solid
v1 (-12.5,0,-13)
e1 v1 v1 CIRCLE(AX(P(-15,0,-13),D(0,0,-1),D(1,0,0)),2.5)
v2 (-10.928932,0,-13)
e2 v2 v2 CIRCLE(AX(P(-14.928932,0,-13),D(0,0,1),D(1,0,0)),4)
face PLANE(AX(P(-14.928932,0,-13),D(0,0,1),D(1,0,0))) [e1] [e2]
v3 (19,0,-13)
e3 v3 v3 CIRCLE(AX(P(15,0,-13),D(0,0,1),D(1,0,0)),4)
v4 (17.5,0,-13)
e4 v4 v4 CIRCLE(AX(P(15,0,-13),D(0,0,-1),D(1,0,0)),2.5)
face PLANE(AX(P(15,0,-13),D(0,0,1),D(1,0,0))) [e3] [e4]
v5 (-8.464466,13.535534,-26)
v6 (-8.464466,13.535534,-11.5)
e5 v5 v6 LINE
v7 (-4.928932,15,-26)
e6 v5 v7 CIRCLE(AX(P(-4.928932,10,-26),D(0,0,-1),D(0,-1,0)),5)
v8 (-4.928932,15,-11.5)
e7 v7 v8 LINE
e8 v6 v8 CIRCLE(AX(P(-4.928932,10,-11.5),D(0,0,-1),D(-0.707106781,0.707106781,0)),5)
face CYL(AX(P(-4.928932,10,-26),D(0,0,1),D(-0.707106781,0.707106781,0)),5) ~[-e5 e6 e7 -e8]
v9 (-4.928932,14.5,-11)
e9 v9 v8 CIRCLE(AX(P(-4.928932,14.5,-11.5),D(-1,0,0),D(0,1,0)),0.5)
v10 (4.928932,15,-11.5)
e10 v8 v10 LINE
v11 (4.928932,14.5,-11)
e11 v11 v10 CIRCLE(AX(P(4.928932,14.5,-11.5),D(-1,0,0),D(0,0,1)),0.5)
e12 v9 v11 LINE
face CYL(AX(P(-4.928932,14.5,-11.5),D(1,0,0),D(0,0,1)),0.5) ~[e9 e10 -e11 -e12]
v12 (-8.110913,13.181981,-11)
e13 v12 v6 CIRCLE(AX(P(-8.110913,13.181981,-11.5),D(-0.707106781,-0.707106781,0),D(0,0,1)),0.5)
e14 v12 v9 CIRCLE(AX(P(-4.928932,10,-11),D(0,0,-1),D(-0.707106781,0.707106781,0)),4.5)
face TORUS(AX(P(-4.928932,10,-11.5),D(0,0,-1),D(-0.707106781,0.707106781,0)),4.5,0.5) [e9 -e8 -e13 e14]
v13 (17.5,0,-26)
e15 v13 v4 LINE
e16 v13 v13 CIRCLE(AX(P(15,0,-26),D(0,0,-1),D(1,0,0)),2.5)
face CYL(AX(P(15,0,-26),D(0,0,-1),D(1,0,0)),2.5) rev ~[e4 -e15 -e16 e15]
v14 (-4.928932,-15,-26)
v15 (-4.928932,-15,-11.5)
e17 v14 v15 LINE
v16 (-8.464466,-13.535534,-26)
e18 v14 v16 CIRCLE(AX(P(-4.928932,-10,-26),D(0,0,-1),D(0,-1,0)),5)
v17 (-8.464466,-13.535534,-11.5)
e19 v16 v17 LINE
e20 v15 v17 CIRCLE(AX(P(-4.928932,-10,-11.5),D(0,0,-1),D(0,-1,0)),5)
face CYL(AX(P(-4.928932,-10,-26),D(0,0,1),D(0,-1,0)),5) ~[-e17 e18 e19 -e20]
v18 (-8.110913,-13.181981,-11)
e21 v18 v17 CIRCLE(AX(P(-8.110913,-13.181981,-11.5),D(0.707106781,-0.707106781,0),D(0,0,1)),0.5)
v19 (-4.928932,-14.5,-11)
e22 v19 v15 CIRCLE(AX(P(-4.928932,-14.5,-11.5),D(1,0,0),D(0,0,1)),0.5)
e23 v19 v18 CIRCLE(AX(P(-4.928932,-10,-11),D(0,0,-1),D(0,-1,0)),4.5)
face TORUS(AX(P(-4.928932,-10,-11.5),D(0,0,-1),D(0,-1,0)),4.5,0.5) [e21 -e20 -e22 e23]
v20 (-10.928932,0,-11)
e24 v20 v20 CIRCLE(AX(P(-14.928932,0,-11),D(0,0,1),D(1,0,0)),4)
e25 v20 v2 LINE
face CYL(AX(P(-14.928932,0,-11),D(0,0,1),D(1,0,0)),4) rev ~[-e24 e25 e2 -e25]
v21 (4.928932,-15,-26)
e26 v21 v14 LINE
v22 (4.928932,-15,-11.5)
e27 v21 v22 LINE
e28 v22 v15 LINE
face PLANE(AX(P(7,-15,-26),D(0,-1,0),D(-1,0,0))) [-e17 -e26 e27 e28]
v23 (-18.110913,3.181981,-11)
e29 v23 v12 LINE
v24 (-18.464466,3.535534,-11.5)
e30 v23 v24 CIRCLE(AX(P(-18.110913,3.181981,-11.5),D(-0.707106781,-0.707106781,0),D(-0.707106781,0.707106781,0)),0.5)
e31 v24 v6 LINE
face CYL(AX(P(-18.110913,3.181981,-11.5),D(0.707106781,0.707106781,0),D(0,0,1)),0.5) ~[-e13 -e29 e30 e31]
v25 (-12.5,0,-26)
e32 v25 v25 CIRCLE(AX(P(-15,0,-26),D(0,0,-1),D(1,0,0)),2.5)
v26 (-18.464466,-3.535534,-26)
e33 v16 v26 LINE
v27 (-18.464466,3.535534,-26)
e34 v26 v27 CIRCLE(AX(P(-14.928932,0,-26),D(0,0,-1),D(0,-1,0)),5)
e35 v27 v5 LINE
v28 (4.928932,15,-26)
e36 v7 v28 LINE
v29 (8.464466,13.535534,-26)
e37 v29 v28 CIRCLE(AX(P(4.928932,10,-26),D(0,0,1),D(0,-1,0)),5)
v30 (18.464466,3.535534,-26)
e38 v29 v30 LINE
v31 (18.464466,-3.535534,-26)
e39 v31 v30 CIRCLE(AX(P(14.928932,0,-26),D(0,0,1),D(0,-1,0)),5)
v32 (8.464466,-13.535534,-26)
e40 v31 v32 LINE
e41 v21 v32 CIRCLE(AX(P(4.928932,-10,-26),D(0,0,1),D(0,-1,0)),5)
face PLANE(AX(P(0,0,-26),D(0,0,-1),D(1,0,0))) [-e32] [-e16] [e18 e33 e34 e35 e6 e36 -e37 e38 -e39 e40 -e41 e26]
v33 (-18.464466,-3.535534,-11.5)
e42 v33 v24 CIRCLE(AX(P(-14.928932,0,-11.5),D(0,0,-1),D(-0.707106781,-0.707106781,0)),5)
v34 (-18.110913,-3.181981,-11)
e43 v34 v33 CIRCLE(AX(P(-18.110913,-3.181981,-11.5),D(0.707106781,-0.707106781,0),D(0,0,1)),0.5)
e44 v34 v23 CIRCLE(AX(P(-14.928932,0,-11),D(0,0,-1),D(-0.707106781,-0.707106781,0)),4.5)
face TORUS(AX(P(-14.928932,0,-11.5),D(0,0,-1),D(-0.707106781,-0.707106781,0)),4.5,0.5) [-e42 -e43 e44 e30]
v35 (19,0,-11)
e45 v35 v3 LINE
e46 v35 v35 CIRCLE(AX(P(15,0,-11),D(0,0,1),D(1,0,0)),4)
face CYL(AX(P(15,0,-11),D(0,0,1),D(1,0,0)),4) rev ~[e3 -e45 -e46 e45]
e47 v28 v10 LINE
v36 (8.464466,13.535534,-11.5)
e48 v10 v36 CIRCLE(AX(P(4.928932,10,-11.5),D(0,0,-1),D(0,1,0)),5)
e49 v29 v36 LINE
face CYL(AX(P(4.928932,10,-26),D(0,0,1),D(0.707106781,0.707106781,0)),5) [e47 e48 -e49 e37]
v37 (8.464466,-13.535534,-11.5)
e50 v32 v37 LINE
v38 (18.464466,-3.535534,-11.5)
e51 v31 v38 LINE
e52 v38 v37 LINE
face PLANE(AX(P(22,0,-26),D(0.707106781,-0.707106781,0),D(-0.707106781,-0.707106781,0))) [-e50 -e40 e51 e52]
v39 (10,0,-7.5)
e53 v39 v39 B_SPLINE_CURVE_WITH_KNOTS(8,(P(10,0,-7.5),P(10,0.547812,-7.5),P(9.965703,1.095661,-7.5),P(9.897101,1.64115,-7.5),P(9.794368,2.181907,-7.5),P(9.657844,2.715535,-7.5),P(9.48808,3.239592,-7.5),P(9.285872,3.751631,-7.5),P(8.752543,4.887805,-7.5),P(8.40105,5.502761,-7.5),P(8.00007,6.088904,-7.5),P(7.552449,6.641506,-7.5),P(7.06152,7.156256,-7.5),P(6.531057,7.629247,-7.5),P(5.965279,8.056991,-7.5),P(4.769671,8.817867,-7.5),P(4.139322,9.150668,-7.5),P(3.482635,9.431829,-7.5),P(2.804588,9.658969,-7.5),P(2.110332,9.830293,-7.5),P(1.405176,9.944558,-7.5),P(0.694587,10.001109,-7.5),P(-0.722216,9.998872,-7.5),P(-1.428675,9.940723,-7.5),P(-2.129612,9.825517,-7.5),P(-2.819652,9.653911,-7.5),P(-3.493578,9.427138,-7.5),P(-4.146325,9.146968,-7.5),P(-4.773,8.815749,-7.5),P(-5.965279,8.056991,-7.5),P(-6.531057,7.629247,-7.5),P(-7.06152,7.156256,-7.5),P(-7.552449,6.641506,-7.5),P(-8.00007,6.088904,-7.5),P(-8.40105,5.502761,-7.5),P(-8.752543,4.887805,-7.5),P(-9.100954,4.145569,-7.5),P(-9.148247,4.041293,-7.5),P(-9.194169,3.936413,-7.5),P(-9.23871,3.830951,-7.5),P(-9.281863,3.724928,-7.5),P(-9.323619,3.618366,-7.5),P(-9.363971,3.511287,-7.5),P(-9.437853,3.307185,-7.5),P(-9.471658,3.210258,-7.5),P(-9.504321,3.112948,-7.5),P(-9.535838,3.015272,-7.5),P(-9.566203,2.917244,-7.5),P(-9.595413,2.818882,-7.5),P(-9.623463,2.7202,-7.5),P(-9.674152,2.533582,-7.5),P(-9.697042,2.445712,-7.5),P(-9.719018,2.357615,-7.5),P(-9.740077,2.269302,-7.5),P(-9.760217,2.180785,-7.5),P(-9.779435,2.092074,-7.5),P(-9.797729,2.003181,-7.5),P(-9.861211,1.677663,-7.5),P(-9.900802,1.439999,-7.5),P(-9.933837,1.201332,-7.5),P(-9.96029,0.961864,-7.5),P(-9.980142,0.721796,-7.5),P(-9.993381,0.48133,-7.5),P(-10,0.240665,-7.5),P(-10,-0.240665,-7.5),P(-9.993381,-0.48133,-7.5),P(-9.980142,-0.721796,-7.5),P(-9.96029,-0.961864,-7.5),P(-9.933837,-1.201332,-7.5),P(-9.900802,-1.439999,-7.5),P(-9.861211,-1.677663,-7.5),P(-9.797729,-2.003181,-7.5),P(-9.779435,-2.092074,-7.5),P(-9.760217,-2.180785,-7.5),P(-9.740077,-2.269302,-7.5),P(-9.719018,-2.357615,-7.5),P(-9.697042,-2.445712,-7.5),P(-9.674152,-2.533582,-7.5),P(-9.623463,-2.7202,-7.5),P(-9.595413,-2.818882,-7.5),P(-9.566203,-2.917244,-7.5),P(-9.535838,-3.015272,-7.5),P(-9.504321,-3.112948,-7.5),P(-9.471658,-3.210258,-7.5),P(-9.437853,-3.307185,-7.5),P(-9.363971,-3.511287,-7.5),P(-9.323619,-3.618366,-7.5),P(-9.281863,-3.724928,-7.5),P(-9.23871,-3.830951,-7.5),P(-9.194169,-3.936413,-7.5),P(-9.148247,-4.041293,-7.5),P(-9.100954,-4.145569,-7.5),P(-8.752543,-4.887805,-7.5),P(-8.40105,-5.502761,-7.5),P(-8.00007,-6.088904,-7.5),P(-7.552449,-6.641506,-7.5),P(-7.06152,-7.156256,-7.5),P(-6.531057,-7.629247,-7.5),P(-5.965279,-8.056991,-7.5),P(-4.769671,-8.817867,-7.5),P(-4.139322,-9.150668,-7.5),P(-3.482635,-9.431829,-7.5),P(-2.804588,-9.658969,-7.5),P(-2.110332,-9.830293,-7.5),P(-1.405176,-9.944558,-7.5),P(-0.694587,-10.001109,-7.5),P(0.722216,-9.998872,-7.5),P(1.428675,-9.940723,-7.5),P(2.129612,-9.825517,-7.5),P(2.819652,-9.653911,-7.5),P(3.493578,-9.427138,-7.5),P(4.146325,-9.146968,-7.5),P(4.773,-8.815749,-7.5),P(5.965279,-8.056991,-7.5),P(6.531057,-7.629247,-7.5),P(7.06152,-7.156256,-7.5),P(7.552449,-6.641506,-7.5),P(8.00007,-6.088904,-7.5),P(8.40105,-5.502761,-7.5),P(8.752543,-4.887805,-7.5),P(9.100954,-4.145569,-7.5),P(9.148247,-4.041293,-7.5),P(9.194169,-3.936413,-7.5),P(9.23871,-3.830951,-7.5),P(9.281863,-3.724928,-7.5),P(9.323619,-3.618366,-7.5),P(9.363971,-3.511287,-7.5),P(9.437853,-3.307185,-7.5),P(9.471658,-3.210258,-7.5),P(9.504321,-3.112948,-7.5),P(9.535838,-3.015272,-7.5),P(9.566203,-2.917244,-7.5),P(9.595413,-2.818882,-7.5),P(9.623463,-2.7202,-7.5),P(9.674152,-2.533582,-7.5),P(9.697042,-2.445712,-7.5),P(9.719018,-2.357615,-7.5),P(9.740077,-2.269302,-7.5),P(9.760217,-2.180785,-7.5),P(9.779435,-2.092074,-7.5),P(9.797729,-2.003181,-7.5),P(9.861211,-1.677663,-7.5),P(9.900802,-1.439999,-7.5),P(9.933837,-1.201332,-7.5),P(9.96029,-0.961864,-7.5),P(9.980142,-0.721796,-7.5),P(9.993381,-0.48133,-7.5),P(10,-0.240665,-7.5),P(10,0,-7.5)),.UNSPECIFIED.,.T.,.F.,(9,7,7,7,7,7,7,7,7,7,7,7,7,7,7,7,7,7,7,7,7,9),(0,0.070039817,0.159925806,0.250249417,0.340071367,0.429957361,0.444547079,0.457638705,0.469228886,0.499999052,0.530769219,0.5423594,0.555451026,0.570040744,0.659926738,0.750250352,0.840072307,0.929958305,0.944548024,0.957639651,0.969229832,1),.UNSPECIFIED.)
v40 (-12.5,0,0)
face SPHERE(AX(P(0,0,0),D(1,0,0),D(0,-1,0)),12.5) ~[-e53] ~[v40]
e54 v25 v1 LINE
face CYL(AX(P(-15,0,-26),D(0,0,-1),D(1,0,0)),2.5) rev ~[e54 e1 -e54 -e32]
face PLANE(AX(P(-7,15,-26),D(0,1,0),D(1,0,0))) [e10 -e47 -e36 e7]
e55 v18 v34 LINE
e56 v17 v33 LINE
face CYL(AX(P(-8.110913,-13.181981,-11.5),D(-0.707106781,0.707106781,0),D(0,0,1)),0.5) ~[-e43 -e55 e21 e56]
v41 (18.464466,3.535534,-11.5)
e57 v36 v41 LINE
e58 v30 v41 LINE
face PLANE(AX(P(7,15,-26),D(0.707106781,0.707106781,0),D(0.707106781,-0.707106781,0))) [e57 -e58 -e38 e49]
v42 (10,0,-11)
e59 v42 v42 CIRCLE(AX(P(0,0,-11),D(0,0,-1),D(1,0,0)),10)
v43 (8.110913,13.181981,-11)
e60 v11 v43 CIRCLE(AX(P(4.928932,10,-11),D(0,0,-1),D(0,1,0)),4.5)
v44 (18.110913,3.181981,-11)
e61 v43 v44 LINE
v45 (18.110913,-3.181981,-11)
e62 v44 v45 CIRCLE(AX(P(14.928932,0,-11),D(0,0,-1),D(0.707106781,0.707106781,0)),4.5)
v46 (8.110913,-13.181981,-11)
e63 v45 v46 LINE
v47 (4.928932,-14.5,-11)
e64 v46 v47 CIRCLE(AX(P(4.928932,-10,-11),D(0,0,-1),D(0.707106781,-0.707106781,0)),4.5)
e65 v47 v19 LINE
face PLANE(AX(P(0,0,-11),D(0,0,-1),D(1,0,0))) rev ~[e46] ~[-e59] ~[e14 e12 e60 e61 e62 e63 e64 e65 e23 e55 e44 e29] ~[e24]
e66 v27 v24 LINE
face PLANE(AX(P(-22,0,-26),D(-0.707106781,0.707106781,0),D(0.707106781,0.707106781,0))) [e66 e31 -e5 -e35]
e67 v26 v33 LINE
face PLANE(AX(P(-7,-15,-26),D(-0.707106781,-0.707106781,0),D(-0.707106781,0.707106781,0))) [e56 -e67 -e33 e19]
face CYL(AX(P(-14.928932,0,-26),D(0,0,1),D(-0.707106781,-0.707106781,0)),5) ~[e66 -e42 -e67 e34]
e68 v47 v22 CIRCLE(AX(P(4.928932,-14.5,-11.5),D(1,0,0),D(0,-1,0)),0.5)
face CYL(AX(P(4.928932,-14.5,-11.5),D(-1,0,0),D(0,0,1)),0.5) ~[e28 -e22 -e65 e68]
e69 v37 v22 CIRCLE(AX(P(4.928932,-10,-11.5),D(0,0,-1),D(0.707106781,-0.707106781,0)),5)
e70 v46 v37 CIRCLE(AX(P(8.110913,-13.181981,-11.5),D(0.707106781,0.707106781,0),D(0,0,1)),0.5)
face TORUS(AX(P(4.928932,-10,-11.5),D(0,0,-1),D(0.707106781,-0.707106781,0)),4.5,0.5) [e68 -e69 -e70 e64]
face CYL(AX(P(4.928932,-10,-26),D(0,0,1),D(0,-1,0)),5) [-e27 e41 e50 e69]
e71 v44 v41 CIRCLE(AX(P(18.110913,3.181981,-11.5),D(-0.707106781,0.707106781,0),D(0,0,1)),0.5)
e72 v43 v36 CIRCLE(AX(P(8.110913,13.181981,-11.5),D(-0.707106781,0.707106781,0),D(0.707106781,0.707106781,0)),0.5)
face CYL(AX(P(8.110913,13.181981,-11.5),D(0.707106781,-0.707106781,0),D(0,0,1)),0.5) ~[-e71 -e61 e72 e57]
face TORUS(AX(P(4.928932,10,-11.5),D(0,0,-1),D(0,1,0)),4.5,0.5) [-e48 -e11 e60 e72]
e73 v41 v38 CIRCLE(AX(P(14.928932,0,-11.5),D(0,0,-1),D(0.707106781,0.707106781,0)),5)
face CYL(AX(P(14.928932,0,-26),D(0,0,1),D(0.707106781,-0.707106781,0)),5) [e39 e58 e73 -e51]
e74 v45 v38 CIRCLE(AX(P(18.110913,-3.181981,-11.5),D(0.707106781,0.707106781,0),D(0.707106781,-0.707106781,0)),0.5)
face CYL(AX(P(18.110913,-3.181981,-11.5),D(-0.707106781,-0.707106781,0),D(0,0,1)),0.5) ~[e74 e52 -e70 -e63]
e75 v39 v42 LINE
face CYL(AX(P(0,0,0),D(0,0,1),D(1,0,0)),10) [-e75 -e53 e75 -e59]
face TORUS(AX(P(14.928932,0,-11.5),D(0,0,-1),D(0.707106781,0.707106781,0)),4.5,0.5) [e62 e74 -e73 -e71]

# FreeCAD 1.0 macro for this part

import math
import FreeCAD as App
import Part
import Sketcher

V = App.Vector
Q = App.Units.Quantity


def edges_at(feature, points):
    """Names of the edges that pass closest to the given points."""
    edges = feature.Shape.Edges
    near = lambda p: min(range(len(edges)), key=lambda i: edges[i].distToShape(Part.Vertex(*p))[0])
    return sorted({f"Edge{near(p) + 1}" for p in points})


def add_polygon(sketch, points):
    """Adds a closed chain of lines whose ends are joined by coincident constraints."""
    first, n = sketch.GeometryCount, len(points)
    for a, b in zip(points, points[1:] + points[:1]):
        sketch.addGeometry(Part.LineSegment(App.Vector(*a, 0), App.Vector(*b, 0)), False)
    for i in range(n):
        sketch.addConstraint(Sketcher.Constraint("Coincident", first + i, 2, first + (i + 1) % n, 1))

doc = App.newDocument("Part")
body = doc.addObject("PartDesign::Body", "Body")

# Sketch on XY plane
sketch1 = body.newObject("Sketcher::SketchObject", "Sketch")
sketch1.AttachmentSupport = (doc.getObject("XY_Plane"), [""])
sketch1.MapMode = "FlatFace"
sketch1.addGeometry([
    Part.ArcOfCircle(Part.Circle(V(0, 0, 0), V(0, 0, 1), 12.5), math.radians(180), math.radians(360)),
    Part.LineSegment(V(12.5, 0, 0), V(-12.5, 0, 0)),
], False)
sketch1.addConstraint([
    Sketcher.Constraint("Coincident", 0, 1, 1, 2),
    Sketcher.Constraint("Coincident", 1, 1, 0, 2),
    Sketcher.Constraint("Horizontal", 1),
    Sketcher.Constraint("Coincident", 0, 3, -1, 1),
    Sketcher.Constraint("PointOnObject", 0, 1, -1),
    Sketcher.Constraint("Radius", 0, Q("12.5 mm")),
])
revolution = body.newObject("PartDesign::Revolution", "Revolution")
revolution.Profile = sketch1
revolution.ReferenceAxis = (sketch1, ["H_Axis"])
revolution.Angle = 360

# Sketch on XY plane
sketch2 = body.newObject("Sketcher::SketchObject", "Sketch001")
sketch2.AttachmentSupport = (doc.getObject("XY_Plane"), [""])
sketch2.MapMode = "FlatFace"
sketch2.addGeometry(Part.Circle(V(0, 0, 0), V(0, 0, 1), 10), False)
sketch2.addConstraint([
    Sketcher.Constraint("Coincident", 0, 3, -1, 1),
    Sketcher.Constraint("Diameter", 0, Q("20 mm")),
])
pad1 = body.newObject("PartDesign::Pad", "Pad")
pad1.Profile = sketch2
pad1.Length = 26
pad1.Reversed = True

# Sketch on XY plane
sketch3 = body.newObject("Sketcher::SketchObject", "Sketch002")
sketch3.AttachmentSupport = (doc.getObject("XY_Plane"), [""])
sketch3.MapMode = "FlatFace"
sketch3.AttachmentOffset = App.Placement(V(0, 0, -26), App.Rotation())
add_polygon(sketch3, [(7, -15), (-7, -15), (-22, 0), (-7, 15), (7, 15), (22, 0)])  # lines 0-5
sketch3.addGeometry(Part.Circle(V(-15, 0, 0), V(0, 0, 1), 2.5), False)  # 6
sketch3.addGeometry(Part.Circle(V(0, 0, 0), V(0, 0, 1), 10), False)  # 7
sketch3.addGeometry(Part.Circle(V(15, 0, 0), V(0, 0, 1), 2.5), False)  # 8
sketch3.addConstraint([
    Sketcher.Constraint("Horizontal", 0),
    Sketcher.Constraint("Horizontal", 3),
    Sketcher.Constraint("Coincident", 7, 3, -1, 1),
    Sketcher.Constraint("Equal", 6, 8),
    Sketcher.Constraint("Symmetric", 6, 3, 8, 3, -1, 1),
    Sketcher.Constraint("Symmetric", 0, 2, 3, 2, -1, 1),
    Sketcher.Constraint("Symmetric", 1, 2, 4, 2, -1, 1),
    Sketcher.Constraint("PointOnObject", 6, 3, -1),
    Sketcher.Constraint("PointOnObject", 1, 2, -1),
    Sketcher.Constraint("Perpendicular", 1, 2),
    Sketcher.Constraint("Perpendicular", 4, 5),
    Sketcher.Constraint("Vertical", 0, 2, 2, 2),
    Sketcher.Constraint("Diameter", 6, Q("5 mm")),
    Sketcher.Constraint("Diameter", 7, Q("20 mm")),
    Sketcher.Constraint("DistanceX", 0, 2, 0, 1, Q("14 mm")),
    Sketcher.Constraint("DistanceX", 6, 3, -1, 1, Q("15 mm")),
    Sketcher.Constraint("DistanceY", 0, 2, -1, 1, Q("15 mm")),
])
pad2 = body.newObject("PartDesign::Pad", "Pad001")
pad2.Profile = sketch3
pad2.Length = 15
doc.recompute()

fillet = body.newObject("PartDesign::Fillet", "Fillet")
fillet.Base = (pad2, edges_at(pad2, [
    (-22, 0, -18.5),
    (-7, -15, -18.5),
    (7, -15, -18.5),
    (22, 0, -18.5),
    (7, 15, -18.5),
    (-7, 15, -18.5),
]))
fillet.Radius = 5
doc.recompute()

fillet2 = body.newObject("PartDesign::Fillet", "Fillet001")
fillet2.Base = (fillet, edges_at(fillet, [(-13.464, -8.536, -11)]))
fillet2.Radius = 0.5

# Sketch on XY plane
sketch4 = body.newObject("Sketcher::SketchObject", "Sketch003")
sketch4.AttachmentSupport = (doc.getObject("XY_Plane"), [""])
sketch4.MapMode = "FlatFace"
sketch4.AttachmentOffset = App.Placement(V(0, 0, -11), App.Rotation())
sketch4.addGeometry([
    Part.Circle(V(-14.928932, 0, 0), V(0, 0, 1), 4),
    Part.Circle(V(15, 0, 0), V(0, 0, 1), 4),
], False)
sketch4.addConstraint([
    Sketcher.Constraint("Equal", 0, 1),
    Sketcher.Constraint("PointOnObject", 0, 3, -1),
    Sketcher.Constraint("PointOnObject", 1, 3, -1),
    Sketcher.Constraint("Diameter", 0, Q("8 mm")),
    Sketcher.Constraint("DistanceX", -1, 1, 1, 3, Q("15 mm")),
    Sketcher.Constraint("DistanceX", 0, 3, 1, 3, Q("29.928932 mm")),
])
pocket1 = body.newObject("PartDesign::Pocket", "Pocket")
pocket1.Profile = sketch4
pocket1.Length = 2

doc.recompute()
